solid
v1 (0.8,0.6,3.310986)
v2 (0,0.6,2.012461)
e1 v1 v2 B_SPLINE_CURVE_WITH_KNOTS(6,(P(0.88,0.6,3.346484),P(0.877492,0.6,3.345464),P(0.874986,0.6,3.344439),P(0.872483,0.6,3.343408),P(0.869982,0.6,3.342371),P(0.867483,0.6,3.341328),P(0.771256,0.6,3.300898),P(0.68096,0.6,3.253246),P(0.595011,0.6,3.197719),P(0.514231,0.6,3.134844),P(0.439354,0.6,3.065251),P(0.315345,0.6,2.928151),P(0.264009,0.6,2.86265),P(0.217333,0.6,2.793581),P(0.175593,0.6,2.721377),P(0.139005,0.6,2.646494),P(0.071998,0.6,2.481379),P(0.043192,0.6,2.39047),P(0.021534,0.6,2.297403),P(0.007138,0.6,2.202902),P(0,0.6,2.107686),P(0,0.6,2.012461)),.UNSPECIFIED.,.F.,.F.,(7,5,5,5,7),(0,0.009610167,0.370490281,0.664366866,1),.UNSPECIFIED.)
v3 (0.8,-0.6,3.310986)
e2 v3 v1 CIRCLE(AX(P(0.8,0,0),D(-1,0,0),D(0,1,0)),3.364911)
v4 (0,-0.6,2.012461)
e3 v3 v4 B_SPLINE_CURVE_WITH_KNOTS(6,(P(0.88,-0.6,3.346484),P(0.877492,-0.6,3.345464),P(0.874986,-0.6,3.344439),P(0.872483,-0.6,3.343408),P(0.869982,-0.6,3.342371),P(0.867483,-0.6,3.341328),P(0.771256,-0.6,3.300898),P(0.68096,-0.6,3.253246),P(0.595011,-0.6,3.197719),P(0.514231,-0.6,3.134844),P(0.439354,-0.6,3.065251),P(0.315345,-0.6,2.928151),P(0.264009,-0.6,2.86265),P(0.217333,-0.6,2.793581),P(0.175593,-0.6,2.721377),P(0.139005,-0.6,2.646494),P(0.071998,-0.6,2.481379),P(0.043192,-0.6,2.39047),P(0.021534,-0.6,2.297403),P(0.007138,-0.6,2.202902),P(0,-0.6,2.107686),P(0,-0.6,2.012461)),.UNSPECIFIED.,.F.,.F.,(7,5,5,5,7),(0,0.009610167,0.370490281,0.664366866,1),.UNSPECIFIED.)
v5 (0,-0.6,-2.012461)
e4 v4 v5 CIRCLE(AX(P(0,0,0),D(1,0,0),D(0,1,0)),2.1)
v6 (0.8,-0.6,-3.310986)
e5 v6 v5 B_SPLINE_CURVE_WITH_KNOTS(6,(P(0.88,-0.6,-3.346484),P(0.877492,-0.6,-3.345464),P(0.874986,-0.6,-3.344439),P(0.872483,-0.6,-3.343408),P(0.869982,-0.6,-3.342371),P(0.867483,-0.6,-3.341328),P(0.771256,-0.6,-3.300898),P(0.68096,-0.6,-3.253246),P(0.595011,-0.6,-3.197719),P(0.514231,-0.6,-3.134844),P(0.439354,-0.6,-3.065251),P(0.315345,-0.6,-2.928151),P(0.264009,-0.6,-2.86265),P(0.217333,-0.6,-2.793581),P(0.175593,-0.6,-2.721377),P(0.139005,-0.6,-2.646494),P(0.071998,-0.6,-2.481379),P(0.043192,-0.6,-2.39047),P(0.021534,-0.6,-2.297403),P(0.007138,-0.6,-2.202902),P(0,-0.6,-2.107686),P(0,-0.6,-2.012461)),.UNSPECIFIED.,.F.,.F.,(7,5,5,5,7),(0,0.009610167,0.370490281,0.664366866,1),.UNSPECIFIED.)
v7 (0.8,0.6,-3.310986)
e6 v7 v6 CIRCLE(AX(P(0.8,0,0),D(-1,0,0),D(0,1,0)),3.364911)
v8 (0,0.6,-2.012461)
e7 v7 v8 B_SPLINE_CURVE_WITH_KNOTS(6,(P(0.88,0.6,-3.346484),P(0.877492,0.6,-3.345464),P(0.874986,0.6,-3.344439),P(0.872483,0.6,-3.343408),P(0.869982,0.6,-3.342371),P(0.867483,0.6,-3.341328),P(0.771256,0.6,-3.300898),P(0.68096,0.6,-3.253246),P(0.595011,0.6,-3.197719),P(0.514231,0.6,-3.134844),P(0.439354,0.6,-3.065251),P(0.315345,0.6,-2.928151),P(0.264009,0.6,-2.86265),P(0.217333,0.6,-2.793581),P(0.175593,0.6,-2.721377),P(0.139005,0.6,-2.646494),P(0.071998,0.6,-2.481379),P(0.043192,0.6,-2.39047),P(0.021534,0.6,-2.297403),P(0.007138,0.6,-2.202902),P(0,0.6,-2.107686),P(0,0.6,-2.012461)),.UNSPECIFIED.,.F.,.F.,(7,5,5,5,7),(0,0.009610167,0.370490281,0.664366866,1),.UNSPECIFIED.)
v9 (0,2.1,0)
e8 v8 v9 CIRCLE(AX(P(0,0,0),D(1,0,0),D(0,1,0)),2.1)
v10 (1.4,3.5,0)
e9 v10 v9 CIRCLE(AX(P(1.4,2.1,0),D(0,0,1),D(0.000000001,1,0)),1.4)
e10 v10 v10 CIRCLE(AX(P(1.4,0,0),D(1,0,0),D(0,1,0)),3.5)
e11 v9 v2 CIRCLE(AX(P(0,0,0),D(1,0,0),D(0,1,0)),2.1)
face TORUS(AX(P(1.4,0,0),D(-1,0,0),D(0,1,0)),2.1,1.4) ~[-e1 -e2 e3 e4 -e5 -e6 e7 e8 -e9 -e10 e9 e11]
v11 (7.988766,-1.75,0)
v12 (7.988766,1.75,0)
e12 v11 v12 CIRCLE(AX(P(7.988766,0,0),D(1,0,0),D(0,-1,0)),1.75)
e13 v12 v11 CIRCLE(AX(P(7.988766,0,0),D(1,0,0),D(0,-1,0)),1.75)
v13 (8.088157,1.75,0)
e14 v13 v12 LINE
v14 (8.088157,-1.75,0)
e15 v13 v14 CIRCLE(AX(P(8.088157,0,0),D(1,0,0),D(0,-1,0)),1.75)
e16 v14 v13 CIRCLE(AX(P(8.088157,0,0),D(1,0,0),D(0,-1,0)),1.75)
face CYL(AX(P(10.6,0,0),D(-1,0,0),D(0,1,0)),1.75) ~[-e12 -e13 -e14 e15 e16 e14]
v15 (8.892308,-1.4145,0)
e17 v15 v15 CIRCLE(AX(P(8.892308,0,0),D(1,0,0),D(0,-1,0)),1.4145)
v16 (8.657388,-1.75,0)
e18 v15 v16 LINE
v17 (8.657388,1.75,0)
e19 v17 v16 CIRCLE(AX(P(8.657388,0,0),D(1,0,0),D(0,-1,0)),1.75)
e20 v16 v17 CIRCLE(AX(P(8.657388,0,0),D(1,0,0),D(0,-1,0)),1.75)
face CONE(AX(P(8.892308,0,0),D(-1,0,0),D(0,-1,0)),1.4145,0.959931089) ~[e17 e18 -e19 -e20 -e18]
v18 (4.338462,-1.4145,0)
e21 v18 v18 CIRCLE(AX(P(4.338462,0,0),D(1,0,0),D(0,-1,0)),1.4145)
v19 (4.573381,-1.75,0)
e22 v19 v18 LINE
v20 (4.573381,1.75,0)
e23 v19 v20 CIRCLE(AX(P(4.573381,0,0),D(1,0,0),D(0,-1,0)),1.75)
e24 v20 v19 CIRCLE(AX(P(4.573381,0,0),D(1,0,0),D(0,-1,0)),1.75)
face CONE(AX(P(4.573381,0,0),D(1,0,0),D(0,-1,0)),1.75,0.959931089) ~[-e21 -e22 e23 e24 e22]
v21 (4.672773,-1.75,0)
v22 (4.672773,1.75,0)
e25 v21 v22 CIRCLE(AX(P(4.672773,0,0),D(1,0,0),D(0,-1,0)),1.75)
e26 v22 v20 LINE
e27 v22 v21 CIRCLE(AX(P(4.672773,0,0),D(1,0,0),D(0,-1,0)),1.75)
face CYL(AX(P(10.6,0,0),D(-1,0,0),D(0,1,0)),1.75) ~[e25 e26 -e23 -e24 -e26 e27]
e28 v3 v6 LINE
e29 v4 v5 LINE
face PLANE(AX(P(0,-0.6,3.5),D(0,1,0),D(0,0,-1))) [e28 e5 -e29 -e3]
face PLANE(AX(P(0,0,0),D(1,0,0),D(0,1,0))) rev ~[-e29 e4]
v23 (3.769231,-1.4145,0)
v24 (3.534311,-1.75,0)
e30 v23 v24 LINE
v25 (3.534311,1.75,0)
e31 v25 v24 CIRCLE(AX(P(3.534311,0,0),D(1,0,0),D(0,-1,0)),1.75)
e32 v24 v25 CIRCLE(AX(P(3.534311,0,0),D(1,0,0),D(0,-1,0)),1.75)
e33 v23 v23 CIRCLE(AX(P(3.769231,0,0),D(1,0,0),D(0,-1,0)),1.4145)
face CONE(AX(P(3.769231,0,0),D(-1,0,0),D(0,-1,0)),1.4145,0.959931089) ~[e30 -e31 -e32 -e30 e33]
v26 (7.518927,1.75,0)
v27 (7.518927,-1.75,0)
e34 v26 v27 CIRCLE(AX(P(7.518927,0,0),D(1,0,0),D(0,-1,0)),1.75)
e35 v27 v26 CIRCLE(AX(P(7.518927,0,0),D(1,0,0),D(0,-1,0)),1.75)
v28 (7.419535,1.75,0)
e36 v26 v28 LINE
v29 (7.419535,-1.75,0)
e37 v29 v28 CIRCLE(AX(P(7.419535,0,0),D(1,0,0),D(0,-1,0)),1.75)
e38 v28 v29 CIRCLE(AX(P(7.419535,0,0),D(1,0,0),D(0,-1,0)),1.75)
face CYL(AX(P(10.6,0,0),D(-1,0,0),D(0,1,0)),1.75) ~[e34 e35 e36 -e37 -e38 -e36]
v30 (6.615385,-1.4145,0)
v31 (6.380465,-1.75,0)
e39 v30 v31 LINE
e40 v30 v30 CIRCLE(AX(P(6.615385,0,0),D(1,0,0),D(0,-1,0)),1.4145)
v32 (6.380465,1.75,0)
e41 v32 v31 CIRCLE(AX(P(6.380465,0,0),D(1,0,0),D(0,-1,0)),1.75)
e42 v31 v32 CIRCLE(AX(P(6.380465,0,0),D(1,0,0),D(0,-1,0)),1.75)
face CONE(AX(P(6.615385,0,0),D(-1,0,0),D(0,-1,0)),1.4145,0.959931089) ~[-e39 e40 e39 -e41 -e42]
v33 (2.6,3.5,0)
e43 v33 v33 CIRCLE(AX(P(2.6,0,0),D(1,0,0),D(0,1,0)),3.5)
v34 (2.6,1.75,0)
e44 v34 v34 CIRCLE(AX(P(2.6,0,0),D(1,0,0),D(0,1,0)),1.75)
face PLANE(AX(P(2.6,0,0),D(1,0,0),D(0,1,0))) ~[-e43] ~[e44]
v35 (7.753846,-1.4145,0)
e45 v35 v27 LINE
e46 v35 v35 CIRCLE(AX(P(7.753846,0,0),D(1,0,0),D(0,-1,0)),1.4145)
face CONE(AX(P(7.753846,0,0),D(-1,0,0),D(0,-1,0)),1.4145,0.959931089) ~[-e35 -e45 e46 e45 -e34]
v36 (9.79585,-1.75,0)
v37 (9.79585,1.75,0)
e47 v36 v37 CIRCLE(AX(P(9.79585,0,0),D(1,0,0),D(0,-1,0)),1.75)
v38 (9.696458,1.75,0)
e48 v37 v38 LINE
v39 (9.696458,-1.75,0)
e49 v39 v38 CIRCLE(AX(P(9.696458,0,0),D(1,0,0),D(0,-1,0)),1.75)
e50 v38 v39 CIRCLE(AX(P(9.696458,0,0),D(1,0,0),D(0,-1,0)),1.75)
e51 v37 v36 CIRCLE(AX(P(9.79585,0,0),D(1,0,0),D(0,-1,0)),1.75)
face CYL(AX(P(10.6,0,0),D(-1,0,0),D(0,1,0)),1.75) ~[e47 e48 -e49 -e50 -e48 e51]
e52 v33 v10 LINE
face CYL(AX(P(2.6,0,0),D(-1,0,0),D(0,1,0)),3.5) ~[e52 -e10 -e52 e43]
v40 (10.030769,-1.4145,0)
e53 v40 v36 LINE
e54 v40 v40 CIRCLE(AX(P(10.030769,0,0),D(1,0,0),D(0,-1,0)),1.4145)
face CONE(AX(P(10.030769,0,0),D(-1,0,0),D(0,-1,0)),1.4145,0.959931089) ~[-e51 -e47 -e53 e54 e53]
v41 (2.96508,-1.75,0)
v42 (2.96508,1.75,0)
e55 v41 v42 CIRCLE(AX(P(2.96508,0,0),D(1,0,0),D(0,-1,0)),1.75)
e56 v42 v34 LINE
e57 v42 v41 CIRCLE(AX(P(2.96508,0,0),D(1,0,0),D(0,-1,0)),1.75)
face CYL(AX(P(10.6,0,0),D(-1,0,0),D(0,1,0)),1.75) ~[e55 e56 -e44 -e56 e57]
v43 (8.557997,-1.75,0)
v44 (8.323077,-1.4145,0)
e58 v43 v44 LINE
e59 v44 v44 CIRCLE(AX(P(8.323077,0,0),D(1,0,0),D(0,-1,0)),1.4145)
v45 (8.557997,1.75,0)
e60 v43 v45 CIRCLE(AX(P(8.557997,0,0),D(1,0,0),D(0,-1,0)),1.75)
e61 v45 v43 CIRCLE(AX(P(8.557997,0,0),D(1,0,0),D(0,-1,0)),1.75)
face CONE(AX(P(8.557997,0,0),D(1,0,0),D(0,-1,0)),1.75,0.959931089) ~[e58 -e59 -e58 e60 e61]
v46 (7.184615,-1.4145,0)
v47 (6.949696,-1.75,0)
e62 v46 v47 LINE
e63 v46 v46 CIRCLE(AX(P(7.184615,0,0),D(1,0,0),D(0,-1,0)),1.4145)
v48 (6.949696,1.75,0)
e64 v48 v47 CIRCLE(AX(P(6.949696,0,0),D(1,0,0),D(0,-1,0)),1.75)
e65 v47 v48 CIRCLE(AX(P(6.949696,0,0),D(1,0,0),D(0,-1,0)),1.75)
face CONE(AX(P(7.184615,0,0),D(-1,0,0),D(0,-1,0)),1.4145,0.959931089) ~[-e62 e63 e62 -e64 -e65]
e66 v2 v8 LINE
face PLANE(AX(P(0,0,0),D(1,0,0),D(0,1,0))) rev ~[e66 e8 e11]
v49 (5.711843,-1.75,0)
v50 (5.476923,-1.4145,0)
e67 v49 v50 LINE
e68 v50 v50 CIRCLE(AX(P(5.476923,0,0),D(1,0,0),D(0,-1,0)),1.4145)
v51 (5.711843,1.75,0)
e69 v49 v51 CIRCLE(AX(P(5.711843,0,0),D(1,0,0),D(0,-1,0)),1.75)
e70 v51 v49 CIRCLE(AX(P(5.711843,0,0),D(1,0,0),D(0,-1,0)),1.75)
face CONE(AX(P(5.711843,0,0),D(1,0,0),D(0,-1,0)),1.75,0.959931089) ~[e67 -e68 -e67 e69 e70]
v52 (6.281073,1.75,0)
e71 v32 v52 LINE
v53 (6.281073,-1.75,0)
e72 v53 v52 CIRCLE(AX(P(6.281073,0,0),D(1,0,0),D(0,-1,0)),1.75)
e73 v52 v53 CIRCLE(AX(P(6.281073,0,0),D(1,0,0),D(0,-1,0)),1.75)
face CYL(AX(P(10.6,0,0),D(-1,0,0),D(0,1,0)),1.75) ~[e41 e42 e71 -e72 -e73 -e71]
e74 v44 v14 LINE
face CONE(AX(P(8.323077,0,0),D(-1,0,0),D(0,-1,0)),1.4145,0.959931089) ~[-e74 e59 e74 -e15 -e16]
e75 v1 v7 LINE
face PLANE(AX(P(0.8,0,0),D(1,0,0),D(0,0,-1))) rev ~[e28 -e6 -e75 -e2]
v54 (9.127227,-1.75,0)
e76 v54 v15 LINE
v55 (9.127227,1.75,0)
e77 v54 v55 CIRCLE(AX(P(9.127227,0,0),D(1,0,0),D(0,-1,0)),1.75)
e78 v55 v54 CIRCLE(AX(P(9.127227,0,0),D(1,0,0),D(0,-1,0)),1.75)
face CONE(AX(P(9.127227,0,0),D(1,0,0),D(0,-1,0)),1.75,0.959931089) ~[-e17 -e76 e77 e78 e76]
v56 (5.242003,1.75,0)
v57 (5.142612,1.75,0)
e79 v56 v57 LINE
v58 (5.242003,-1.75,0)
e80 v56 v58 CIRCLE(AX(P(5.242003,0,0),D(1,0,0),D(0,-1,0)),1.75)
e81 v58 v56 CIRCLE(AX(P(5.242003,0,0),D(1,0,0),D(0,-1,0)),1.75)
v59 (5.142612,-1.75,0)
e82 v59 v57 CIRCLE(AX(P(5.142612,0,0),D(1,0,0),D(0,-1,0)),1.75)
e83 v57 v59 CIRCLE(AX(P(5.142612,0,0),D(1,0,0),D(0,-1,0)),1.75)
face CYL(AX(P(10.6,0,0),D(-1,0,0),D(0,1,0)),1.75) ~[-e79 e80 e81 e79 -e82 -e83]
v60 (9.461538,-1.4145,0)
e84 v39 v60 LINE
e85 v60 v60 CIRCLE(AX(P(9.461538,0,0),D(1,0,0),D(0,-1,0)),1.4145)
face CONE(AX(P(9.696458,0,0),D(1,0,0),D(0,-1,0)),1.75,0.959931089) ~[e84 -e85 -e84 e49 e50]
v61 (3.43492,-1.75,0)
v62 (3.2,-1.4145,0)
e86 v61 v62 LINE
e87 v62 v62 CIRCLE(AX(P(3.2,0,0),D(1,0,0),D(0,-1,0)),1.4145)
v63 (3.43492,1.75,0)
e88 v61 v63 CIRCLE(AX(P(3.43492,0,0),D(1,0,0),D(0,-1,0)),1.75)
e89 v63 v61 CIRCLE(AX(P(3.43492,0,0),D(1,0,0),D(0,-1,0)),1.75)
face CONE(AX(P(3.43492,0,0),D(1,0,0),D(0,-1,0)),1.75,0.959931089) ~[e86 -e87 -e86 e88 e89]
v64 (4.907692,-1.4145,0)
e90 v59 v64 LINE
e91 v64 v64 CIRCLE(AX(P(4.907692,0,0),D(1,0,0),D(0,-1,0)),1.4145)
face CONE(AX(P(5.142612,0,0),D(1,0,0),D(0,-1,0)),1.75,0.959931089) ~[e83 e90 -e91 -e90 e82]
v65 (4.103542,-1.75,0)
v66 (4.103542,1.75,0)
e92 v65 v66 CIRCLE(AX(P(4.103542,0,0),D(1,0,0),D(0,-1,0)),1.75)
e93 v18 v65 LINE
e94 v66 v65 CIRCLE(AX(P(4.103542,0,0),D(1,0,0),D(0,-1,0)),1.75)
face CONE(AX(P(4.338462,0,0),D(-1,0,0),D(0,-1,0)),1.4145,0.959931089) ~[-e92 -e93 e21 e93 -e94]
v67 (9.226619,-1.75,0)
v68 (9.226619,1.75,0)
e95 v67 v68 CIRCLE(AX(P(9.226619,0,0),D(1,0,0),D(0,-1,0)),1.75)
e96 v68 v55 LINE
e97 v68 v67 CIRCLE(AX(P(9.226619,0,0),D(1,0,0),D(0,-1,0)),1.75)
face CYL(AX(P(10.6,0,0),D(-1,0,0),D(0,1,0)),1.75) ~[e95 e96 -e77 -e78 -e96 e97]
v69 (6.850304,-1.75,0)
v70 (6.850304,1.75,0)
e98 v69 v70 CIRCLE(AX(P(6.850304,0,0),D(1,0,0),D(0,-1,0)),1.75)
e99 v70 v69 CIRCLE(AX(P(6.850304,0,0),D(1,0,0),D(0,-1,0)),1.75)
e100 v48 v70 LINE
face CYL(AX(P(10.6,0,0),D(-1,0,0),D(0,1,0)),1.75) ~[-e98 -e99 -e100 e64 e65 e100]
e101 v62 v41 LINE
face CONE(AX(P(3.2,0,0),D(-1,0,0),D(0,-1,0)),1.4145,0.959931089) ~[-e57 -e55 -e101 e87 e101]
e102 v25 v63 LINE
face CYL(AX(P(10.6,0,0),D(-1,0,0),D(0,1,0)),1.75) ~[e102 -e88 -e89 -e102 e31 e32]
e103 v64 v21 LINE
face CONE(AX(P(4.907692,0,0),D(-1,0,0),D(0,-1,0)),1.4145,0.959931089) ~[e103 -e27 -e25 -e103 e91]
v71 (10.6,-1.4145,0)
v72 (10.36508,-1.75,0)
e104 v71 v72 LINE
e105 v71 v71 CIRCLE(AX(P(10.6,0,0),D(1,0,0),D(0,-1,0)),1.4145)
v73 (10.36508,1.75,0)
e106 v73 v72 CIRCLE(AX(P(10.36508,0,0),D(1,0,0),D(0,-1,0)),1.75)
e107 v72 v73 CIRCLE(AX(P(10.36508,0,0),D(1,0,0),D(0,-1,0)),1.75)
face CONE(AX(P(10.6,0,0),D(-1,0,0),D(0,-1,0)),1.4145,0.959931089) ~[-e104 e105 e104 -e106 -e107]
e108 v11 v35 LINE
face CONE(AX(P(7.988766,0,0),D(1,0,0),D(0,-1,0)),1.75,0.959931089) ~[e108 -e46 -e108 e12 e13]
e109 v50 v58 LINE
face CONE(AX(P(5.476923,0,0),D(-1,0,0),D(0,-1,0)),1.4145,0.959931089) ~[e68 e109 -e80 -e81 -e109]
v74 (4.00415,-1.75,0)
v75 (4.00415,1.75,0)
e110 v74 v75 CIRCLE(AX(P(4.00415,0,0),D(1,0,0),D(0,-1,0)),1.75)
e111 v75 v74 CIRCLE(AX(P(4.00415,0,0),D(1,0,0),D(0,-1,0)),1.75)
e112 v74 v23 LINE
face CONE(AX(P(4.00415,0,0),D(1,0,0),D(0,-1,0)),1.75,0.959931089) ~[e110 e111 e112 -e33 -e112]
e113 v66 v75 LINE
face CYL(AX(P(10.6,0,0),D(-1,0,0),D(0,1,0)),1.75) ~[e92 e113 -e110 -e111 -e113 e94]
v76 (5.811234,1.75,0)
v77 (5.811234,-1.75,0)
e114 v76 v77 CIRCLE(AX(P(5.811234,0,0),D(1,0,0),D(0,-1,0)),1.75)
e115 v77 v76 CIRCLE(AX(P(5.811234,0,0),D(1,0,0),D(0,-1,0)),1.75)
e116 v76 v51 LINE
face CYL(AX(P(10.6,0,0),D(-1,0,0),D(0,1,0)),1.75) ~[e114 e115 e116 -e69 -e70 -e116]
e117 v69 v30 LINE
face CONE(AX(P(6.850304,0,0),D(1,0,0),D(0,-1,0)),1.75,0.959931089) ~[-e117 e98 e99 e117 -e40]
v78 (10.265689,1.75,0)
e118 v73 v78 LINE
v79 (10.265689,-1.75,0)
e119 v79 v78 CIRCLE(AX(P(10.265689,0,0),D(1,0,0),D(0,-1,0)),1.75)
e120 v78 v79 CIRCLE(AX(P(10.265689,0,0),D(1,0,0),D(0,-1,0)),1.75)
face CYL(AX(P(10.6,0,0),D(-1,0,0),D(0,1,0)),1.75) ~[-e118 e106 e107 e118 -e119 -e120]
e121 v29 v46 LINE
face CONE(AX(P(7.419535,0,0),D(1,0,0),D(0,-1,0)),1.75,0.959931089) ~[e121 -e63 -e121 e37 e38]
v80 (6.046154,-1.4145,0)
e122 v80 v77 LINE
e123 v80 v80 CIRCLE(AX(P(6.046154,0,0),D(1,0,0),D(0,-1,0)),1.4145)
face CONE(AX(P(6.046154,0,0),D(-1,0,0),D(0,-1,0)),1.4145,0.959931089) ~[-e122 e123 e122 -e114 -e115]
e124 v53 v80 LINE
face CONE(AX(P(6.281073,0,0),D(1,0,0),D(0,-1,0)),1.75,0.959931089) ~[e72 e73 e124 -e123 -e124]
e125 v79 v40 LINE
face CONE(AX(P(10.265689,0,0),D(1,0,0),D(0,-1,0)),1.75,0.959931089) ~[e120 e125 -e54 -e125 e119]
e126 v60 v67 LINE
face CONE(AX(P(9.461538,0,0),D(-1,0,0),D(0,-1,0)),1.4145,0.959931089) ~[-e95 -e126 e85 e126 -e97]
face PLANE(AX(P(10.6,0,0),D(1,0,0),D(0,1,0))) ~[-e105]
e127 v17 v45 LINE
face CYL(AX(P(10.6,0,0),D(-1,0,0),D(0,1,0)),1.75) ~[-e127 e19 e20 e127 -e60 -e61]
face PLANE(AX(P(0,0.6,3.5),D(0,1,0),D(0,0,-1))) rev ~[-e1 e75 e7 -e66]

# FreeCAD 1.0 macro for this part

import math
import FreeCAD as App
import Part
import Sketcher
Q = App.Units.Quantity

doc = App.newDocument("Part")
body = doc.addObject("PartDesign::Body", "Body")

sketch1 = body.newObject("Sketcher::SketchObject", "Sketch")
sketch1.AttachmentSupport = (doc.getObject("XY_Plane"), [""])
sketch1.MapMode = "FlatFace"
sketch1.addGeometry([
    Part.LineSegment(App.Vector(2.6, 1.8, 0), App.Vector(2.6, 3.5, 0)),
    Part.LineSegment(App.Vector(2.6, 3.5, 0), App.Vector(1.4, 3.5, 0)),
    Part.ArcOfCircle(Part.Circle(App.Vector(1.4, 2.1, 0), App.Vector(0, 0, 1), 1.4), math.radians(90), math.radians(180)),
    Part.LineSegment(App.Vector(0, 2.1, 0), App.Vector(0, 0, 0)),
    Part.LineSegment(App.Vector(0, 0, 0), App.Vector(10.6, 0, 0)),
    Part.LineSegment(App.Vector(10.6, 0, 0), App.Vector(10.6, 1.8, 0)),
    Part.LineSegment(App.Vector(10.6, 1.8, 0), App.Vector(2.6, 1.8, 0)),
], False)
sketch1.addConstraint([
    Sketcher.Constraint("Coincident", 0, 2, 1, 1),
    Sketcher.Constraint("Tangent", 1, 2, 2, 1),
    Sketcher.Constraint("Tangent", 2, 2, 3, 1),
    Sketcher.Constraint("Coincident", 3, 2, 4, 1),
    Sketcher.Constraint("Coincident", 4, 2, 5, 1),
    Sketcher.Constraint("Coincident", 5, 2, 6, 1),
    Sketcher.Constraint("Coincident", 6, 2, 0, 1),
    Sketcher.Constraint("Vertical", 0),
    Sketcher.Constraint("Horizontal", 1),
    Sketcher.Constraint("Vertical", 3),
    Sketcher.Constraint("Horizontal", 4),
    Sketcher.Constraint("Vertical", 5),
    Sketcher.Constraint("Horizontal", 6),
    Sketcher.Constraint("Coincident", 3, 2, -1, 1),
    Sketcher.Constraint("Equal", 0, 5),
    Sketcher.Constraint("Radius", 2, Q("1.4 mm")),
    Sketcher.Constraint("DistanceX", 6, 2, 6, 1, Q("8 mm")),
    Sketcher.Constraint("DistanceX", 1, 2, 1, 1, Q("1.2 mm")),
    Sketcher.Constraint("DistanceY", 3, 2, 3, 1, Q("2.1 mm")),
])
revolution = body.newObject("PartDesign::Revolution", "Revolution")
revolution.Profile = sketch1
revolution.ReferenceAxis = (sketch1, ["H_Axis"])
revolution.Angle = 360

sketch2 = body.newObject("Sketcher::SketchObject", "Sketch001")
sketch2.AttachmentSupport = (doc.getObject("YZ_Plane"), [""])
sketch2.MapMode = "FlatFace"
sketch2.addGeometry([
    Part.LineSegment(App.Vector(0.6, 3.5, 0), App.Vector(-0.6, 3.5, 0)),
    Part.LineSegment(App.Vector(-0.6, 3.5, 0), App.Vector(-0.6, -3.5, 0)),
    Part.LineSegment(App.Vector(-0.6, -3.5, 0), App.Vector(0.6, -3.5, 0)),
    Part.LineSegment(App.Vector(0.6, -3.5, 0), App.Vector(0.6, 3.5, 0)),
], False)
sketch2.addConstraint([
    Sketcher.Constraint("Coincident", 0, 2, 1, 1),
    Sketcher.Constraint("Coincident", 1, 2, 2, 1),
    Sketcher.Constraint("Coincident", 2, 2, 3, 1),
    Sketcher.Constraint("Coincident", 3, 2, 0, 1),
    Sketcher.Constraint("Horizontal", 0),
    Sketcher.Constraint("Vertical", 1),
    Sketcher.Constraint("Horizontal", 2),
    Sketcher.Constraint("Vertical", 3),
    Sketcher.Constraint("Symmetric", 0, 2, 2, 2, -1, 1),
    Sketcher.Constraint("DistanceY", 1, 2, 1, 1, Q("7 mm")),
    Sketcher.Constraint("DistanceX", 0, 2, 0, 1, Q("1.2 mm")),
])
pocket1 = body.newObject("PartDesign::Pocket", "Pocket")
pocket1.Profile = sketch2
pocket1.Length = 0.8
pocket1.Reversed = True

sketch3 = body.newObject("Sketcher::SketchObject", "Sketch002")
sketch3.AttachmentSupport = (doc.getObject("XY_Plane"), [""])
sketch3.MapMode = "FlatFace"
sketch3.addGeometry([
    Part.LineSegment(App.Vector(3.2, -1.41, 0), App.Vector(2.97, -1.75, 0)),
    Part.LineSegment(App.Vector(2.97, -1.75, 0), App.Vector(2.97, -2.19, 0)),
    Part.LineSegment(App.Vector(2.97, -2.19, 0), App.Vector(3.43, -2.19, 0)),
    Part.LineSegment(App.Vector(3.43, -2.19, 0), App.Vector(3.43, -1.75, 0)),
    Part.LineSegment(App.Vector(3.43, -1.75, 0), App.Vector(3.2, -1.41, 0)),
], False)
sketch3.addConstraint([
    Sketcher.Constraint("Coincident", 0, 2, 1, 1),
    Sketcher.Constraint("Coincident", 1, 2, 2, 1),
    Sketcher.Constraint("Coincident", 2, 2, 3, 1),
    Sketcher.Constraint("Coincident", 3, 2, 4, 1),
    Sketcher.Constraint("Coincident", 4, 2, 0, 1),
    Sketcher.Constraint("Vertical", 1),
    Sketcher.Constraint("Horizontal", 2),
    Sketcher.Constraint("Vertical", 3),
    Sketcher.Constraint("Horizontal", 0, 2, 3, 2),
    Sketcher.Constraint("Equal", 0, 4),
    Sketcher.Constraint("Angle", 0, Q("-125 deg")),
    Sketcher.Constraint("DistanceX", -1, 1, 4, 2, Q("3.2 mm")),
    Sketcher.Constraint("DistanceY", 0, 2, -1, 1, Q("1.75 mm")),
    Sketcher.Constraint("DistanceY", 1, 2, 1, 1, Q("0.4375 mm")),
    Sketcher.Constraint("DistanceY", 2, 2, 4, 2, Q("0.773 mm")),
])
groove = body.newObject("PartDesign::Groove", "Groove")
groove.Profile = sketch3
groove.ReferenceAxis = (sketch3, ["H_Axis"])
groove.Angle = 360
doc.recompute()

linearpattern = body.newObject("PartDesign::LinearPattern", "LinearPattern")
linearpattern.Originals = [groove]
linearpattern.Direction = (doc.getObject("X_Axis"), [""])
linearpattern.Mode = "offset"
linearpattern.Offset = 0.569231
linearpattern.Occurrences = 14
body.Tip = linearpattern

doc.recompute()
